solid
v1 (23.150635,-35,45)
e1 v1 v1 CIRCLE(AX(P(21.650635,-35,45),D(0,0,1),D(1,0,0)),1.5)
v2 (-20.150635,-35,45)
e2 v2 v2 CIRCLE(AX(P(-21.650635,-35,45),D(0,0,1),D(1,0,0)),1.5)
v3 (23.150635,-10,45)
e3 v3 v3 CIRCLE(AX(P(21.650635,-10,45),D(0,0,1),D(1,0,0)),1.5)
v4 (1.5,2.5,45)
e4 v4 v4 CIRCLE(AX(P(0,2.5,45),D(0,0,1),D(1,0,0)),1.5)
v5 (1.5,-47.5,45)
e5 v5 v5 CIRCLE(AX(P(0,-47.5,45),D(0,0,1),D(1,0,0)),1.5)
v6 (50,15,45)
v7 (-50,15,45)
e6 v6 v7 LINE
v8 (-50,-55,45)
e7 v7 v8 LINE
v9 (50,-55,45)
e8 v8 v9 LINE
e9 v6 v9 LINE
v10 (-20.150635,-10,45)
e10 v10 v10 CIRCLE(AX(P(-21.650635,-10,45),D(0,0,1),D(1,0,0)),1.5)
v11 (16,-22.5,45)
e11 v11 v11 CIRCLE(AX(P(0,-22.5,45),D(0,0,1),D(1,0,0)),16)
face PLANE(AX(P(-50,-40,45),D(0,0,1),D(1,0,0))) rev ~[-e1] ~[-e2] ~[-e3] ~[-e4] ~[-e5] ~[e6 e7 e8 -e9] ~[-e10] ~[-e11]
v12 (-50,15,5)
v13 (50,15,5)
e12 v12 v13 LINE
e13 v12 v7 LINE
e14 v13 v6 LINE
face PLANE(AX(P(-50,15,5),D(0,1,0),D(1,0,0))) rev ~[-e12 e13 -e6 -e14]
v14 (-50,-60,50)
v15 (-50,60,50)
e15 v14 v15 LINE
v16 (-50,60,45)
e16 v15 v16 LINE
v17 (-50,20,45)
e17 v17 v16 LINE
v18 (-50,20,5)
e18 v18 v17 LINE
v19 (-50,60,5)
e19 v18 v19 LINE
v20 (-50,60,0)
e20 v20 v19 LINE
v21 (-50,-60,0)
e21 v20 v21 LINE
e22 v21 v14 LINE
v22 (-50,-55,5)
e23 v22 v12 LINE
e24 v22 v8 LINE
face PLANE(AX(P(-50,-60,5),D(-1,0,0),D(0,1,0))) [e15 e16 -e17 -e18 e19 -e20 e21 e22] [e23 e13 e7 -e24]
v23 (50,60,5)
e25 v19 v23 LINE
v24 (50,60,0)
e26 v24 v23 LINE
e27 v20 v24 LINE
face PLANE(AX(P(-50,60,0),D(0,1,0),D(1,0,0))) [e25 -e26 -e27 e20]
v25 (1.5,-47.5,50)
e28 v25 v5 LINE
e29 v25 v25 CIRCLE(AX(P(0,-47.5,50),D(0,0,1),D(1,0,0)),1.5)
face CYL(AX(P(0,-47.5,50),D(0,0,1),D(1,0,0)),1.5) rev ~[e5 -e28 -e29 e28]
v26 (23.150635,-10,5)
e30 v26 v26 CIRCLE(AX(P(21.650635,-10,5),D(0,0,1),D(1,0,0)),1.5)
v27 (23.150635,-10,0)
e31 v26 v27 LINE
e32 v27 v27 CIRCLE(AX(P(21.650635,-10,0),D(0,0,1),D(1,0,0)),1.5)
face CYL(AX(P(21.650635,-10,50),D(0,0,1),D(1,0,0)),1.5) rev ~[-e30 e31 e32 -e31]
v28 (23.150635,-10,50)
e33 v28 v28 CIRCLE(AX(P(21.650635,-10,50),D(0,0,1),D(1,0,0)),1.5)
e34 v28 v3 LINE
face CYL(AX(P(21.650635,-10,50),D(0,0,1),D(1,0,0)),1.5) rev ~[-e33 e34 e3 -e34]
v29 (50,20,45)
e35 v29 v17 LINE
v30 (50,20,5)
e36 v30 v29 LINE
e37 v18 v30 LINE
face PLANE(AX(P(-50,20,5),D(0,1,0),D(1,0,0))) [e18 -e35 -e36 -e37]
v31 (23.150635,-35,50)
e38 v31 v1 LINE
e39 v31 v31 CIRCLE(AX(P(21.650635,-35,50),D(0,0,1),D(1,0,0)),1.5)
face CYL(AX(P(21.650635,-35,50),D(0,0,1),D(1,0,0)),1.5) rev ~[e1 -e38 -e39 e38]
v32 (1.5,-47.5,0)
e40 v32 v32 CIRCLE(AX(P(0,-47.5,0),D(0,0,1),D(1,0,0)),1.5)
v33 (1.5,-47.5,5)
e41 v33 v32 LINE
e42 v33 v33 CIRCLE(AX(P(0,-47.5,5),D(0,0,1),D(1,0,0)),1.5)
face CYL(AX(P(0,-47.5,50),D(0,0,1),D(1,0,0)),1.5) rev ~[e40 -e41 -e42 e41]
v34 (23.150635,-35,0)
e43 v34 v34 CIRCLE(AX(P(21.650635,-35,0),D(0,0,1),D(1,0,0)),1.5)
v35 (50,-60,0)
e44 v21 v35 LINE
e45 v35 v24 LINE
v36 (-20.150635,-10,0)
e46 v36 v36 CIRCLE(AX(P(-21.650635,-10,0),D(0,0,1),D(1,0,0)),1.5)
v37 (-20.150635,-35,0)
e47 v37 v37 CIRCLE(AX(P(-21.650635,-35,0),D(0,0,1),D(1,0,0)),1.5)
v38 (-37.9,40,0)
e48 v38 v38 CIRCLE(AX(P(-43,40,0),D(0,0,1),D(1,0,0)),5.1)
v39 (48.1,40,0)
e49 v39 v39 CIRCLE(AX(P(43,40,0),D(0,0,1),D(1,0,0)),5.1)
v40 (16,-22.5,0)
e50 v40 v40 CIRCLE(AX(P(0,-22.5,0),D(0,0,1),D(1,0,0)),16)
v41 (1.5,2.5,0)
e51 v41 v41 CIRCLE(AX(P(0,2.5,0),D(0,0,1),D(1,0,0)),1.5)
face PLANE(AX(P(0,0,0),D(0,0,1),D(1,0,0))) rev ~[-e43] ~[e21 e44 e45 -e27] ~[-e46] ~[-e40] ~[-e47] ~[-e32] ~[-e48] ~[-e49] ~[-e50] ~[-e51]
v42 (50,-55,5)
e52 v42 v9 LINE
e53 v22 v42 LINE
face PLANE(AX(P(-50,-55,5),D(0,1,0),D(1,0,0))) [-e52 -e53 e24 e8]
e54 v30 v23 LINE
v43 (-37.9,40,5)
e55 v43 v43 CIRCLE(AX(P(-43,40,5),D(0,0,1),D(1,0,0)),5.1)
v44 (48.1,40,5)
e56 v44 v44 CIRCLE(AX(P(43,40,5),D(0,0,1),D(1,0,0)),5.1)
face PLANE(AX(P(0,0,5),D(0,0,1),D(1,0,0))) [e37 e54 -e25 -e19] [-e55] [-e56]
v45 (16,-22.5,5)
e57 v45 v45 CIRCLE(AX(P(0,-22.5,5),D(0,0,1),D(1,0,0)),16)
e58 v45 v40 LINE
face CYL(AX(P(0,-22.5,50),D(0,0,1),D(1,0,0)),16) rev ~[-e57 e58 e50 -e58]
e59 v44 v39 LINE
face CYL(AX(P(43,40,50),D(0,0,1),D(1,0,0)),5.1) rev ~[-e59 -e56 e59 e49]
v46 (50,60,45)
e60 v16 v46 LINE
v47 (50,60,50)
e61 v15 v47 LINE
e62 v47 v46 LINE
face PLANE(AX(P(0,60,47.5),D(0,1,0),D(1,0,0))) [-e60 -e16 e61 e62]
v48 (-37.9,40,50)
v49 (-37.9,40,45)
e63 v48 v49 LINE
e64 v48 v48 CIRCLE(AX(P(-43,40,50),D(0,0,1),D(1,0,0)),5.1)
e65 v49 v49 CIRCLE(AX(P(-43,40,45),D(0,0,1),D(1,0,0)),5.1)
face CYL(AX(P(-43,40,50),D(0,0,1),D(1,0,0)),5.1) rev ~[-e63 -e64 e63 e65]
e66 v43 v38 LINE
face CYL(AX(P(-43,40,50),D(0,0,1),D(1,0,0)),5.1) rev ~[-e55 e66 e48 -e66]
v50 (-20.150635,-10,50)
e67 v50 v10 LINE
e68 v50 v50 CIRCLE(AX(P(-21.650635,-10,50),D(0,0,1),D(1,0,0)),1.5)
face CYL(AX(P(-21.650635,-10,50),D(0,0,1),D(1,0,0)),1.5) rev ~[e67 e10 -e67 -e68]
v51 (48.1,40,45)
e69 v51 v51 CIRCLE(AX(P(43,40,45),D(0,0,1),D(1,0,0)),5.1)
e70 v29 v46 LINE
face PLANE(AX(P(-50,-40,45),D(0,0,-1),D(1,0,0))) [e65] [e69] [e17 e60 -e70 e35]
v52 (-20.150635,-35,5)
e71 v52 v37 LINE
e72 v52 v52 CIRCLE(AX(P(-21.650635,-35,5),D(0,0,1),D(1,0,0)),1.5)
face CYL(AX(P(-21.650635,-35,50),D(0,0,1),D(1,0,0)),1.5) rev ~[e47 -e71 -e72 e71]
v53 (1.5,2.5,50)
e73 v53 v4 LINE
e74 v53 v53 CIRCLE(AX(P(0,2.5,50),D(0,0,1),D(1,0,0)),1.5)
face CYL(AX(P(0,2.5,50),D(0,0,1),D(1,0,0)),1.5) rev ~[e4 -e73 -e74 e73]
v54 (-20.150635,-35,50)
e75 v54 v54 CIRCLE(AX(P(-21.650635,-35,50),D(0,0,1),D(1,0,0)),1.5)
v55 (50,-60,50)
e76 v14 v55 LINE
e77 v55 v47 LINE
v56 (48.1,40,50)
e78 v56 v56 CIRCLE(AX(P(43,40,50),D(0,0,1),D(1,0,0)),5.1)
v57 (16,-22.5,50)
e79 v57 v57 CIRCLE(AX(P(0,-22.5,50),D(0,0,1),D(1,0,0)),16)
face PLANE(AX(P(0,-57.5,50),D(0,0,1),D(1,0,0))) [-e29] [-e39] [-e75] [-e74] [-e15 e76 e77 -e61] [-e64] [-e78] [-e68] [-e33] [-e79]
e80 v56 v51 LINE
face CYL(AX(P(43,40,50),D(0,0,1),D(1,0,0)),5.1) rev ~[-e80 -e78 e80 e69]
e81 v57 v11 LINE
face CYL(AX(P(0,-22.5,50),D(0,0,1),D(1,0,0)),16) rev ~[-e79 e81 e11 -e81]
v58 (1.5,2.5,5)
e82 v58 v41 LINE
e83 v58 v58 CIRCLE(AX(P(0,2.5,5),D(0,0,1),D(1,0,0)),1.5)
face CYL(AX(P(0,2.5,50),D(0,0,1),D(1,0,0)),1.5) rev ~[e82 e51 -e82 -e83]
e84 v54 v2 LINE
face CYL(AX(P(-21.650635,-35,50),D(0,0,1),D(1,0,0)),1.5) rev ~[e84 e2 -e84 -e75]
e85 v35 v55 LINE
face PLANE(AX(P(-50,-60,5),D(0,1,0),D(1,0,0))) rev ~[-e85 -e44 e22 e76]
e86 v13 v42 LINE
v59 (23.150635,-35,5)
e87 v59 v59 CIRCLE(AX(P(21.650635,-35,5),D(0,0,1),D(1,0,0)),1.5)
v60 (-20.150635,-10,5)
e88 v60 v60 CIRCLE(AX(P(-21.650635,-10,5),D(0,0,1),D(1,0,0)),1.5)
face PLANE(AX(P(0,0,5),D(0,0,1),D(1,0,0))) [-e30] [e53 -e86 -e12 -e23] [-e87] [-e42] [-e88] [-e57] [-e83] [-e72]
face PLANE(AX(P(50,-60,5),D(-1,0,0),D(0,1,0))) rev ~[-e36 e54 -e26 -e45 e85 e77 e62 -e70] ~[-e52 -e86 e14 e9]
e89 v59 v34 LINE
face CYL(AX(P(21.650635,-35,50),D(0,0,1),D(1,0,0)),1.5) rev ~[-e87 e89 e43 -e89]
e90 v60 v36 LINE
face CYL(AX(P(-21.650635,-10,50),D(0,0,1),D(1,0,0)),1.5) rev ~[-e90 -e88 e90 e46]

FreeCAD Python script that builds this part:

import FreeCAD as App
import Part
import Sketcher
Q = App.Units.Quantity


def add_polygon(sketch, points):
    """Adds a closed chain of lines whose ends are joined by coincident constraints."""
    first, n = sketch.GeometryCount, len(points)
    for a, b in zip(points, points[1:] + points[:1]):
        sketch.addGeometry(Part.LineSegment(App.Vector(*a, 0), App.Vector(*b, 0)), False)
    for i in range(n):
        sketch.addConstraint(Sketcher.Constraint("Coincident", first + i, 2, first + (i + 1) % n, 1))

doc = App.newDocument("Part")
body = doc.addObject("PartDesign::Body", "Body")

sketch1 = body.newObject("Sketcher::SketchObject", "Sketch")
sketch1.AttachmentSupport = (doc.getObject("XY_Plane"), [""])
sketch1.MapMode = "FlatFace"
add_polygon(sketch1, [(-50, 60), (-50, -60), (50, -60), (50, 60)])
sketch1.addConstraint(Sketcher.Constraint("Vertical", 0))
sketch1.addConstraint(Sketcher.Constraint("Horizontal", 1))
sketch1.addConstraint(Sketcher.Constraint("Vertical", 2))
sketch1.addConstraint(Sketcher.Constraint("Horizontal", 3))
sketch1.addConstraint(Sketcher.Constraint("Symmetric", 0, 2, 2, 2, -1, 1))
sketch1.addConstraint(Sketcher.Constraint("DistanceX", 1, 1, 1, 2, Q("100 mm")))
sketch1.addConstraint(Sketcher.Constraint("DistanceY", 0, 2, 0, 1, Q("120 mm")))
pad1 = body.newObject("PartDesign::Pad", "Pad")
pad1.Profile = sketch1
pad1.Length = 5

sketch2 = body.newObject("Sketcher::SketchObject", "Sketch001")
sketch2.AttachmentSupport = (doc.getObject("XY_Plane"), [""])
sketch2.MapMode = "FlatFace"
sketch2.AttachmentOffset = App.Placement(App.Vector(0, 0, 5), App.Rotation())
add_polygon(sketch2, [(-50, 20), (-50, 15), (50, 15), (50, 20)])
sketch2.addConstraint(Sketcher.Constraint("Vertical", 0))
sketch2.addConstraint(Sketcher.Constraint("Horizontal", 1))
sketch2.addConstraint(Sketcher.Constraint("Vertical", 2))
sketch2.addConstraint(Sketcher.Constraint("Horizontal", 3))
sketch2.addConstraint(Sketcher.Constraint("DistanceX", 1, 1, 1, 2, Q("100 mm")))
sketch2.addConstraint(Sketcher.Constraint("DistanceY", 0, 2, 0, 1, Q("5 mm")))
sketch2.addConstraint(Sketcher.Constraint("DistanceX", 0, 2, -1, 1, Q("50 mm")))
sketch2.addConstraint(Sketcher.Constraint("DistanceY", -1, 1, 0, 2, Q("15 mm")))
pad2 = body.newObject("PartDesign::Pad", "Pad001")
pad2.Profile = sketch2
pad2.Length = 45

sketch3 = body.newObject("Sketcher::SketchObject", "Sketch002")
sketch3.AttachmentSupport = (doc.getObject("XZ_Plane"), [""])
sketch3.MapMode = "FlatFace"
sketch3.AttachmentOffset = App.Placement(App.Vector(0, 0, -20), App.Rotation())
add_polygon(sketch3, [(-50, 45), (-50, 50), (50, 50), (50, 45)])
sketch3.addConstraint(Sketcher.Constraint("Vertical", 0))
sketch3.addConstraint(Sketcher.Constraint("Horizontal", 1))
sketch3.addConstraint(Sketcher.Constraint("Vertical", 2))
sketch3.addConstraint(Sketcher.Constraint("Horizontal", 3))
sketch3.addConstraint(Sketcher.Constraint("DistanceX", 1, 1, 1, 2, Q("100 mm")))
sketch3.addConstraint(Sketcher.Constraint("DistanceY", 0, 1, 0, 2, Q("5 mm")))
sketch3.addConstraint(Sketcher.Constraint("DistanceX", 0, 2, -1, 1, Q("50 mm")))
sketch3.addConstraint(Sketcher.Constraint("DistanceY", -1, 1, 0, 2, Q("50 mm")))
pad3 = body.newObject("PartDesign::Pad", "Pad002")
pad3.Profile = sketch3
pad3.Type = "TwoLengths"
pad3.Length = 40
pad3.Length2 = 60
pad3.Reversed = True

sketch4 = body.newObject("Sketcher::SketchObject", "Sketch003")
sketch4.AttachmentSupport = (doc.getObject("XZ_Plane"), [""])
sketch4.MapMode = "FlatFace"
sketch4.AttachmentOffset = App.Placement(App.Vector(0, 0, 40), App.Rotation())
add_polygon(sketch4, [(-50, 50), (-50, 45), (50, 45), (50, 50)])
add_polygon(sketch4, [(-50, 5), (-50, 0), (50, 0), (50, 5)])
sketch4.addConstraint(Sketcher.Constraint("Vertical", 0))
sketch4.addConstraint(Sketcher.Constraint("Horizontal", 1))
sketch4.addConstraint(Sketcher.Constraint("Vertical", 2))
sketch4.addConstraint(Sketcher.Constraint("Horizontal", 3))
sketch4.addConstraint(Sketcher.Constraint("Vertical", 4))
sketch4.addConstraint(Sketcher.Constraint("Horizontal", 5))
sketch4.addConstraint(Sketcher.Constraint("Vertical", 6))
sketch4.addConstraint(Sketcher.Constraint("Horizontal", 7))
sketch4.addConstraint(Sketcher.Constraint("Symmetric", 4, 2, 5, 2, -1, 1))
sketch4.addConstraint(Sketcher.Constraint("Vertical", 3, 2, 4, 2))
sketch4.addConstraint(Sketcher.Constraint("Vertical", 2, 2, 5, 2))
sketch4.addConstraint(Sketcher.Constraint("Equal", 2, 4))
sketch4.addConstraint(Sketcher.Constraint("DistanceX", 1, 1, 1, 2, Q("100 mm")))
sketch4.addConstraint(Sketcher.Constraint("DistanceY", 0, 2, 0, 1, Q("5 mm")))
sketch4.addConstraint(Sketcher.Constraint("DistanceY", -1, 1, 0, 2, Q("45 mm")))
pad4 = body.newObject("PartDesign::Pad", "Pad003")
pad4.Profile = sketch4
pad4.Length = 15

sketch5 = body.newObject("Sketcher::SketchObject", "Sketch004")
sketch5.AttachmentSupport = (doc.getObject("XY_Plane"), [""])
sketch5.MapMode = "FlatFace"
sketch5.AttachmentOffset = App.Placement(App.Vector(0, 0, 5), App.Rotation())
add_polygon(sketch5, [(-50, -55), (-50, -60), (50, -60), (50, -55)])
sketch5.addConstraint(Sketcher.Constraint("Vertical", 0))
sketch5.addConstraint(Sketcher.Constraint("Horizontal", 1))
sketch5.addConstraint(Sketcher.Constraint("Vertical", 2))
sketch5.addConstraint(Sketcher.Constraint("Horizontal", 3))
sketch5.addConstraint(Sketcher.Constraint("DistanceX", 1, 1, 1, 2, Q("100 mm")))
sketch5.addConstraint(Sketcher.Constraint("DistanceY", 0, 2, 0, 1, Q("5 mm")))
sketch5.addConstraint(Sketcher.Constraint("DistanceX", 0, 2, -1, 1, Q("50 mm")))
sketch5.addConstraint(Sketcher.Constraint("DistanceY", 0, 2, -1, 1, Q("60 mm")))
pad5 = body.newObject("PartDesign::Pad", "Pad004")
pad5.Profile = sketch5
pad5.Length = 45

sketch6 = body.newObject("Sketcher::SketchObject", "Sketch005")
sketch6.AttachmentSupport = (doc.getObject("XY_Plane"), [""])
sketch6.MapMode = "FlatFace"
sketch6.AttachmentOffset = App.Placement(App.Vector(0, 0, 50), App.Rotation())
sketch6.addGeometry(Part.Circle(App.Vector(0, -22.5, 0), App.Vector(0, 0, 1), 16), False)
sketch6.addGeometry(Part.Circle(App.Vector(0, 2.5, 0), App.Vector(0, 0, 1), 1.5), False)
sketch6.addGeometry(Part.Circle(App.Vector(21.7, -10, 0), App.Vector(0, 0, 1), 1.5), False)
sketch6.addGeometry(Part.Circle(App.Vector(21.7, -35, 0), App.Vector(0, 0, 1), 1.5), False)
sketch6.addGeometry(Part.Circle(App.Vector(0, -47.5, 0), App.Vector(0, 0, 1), 1.5), False)
sketch6.addGeometry(Part.Circle(App.Vector(-21.7, -35, 0), App.Vector(0, 0, 1), 1.5), False)
sketch6.addGeometry(Part.Circle(App.Vector(-21.7, -10, 0), App.Vector(0, 0, 1), 1.5), False)
sketch6.addConstraint(Sketcher.Constraint("Equal", 1, 2))
sketch6.addConstraint(Sketcher.Constraint("Equal", 2, 3))
sketch6.addConstraint(Sketcher.Constraint("Equal", 3, 4))
sketch6.addConstraint(Sketcher.Constraint("Equal", 4, 5))
sketch6.addConstraint(Sketcher.Constraint("Equal", 5, 6))
sketch6.addConstraint(Sketcher.Constraint("Symmetric", 3, 3, 5, 3, -2))
sketch6.addConstraint(Sketcher.Constraint("Symmetric", 2, 3, 6, 3, -2))
sketch6.addConstraint(Sketcher.Constraint("PointOnObject", 0, 3, -2))
sketch6.addConstraint(Sketcher.Constraint("PointOnObject", 1, 3, -2))
sketch6.addConstraint(Sketcher.Constraint("PointOnObject", 4, 3, -2))
sketch6.addConstraint(Sketcher.Constraint("Vertical", 2, 3, 3, 3))
sketch6.addConstraint(Sketcher.Constraint("Diameter", 0, Q("32 mm")))
sketch6.addConstraint(Sketcher.Constraint("Diameter", 1, Q("3 mm")))
sketch6.addConstraint(Sketcher.Constraint("DistanceY", 2, 3, -1, 1, Q("10 mm")))
sketch6.addConstraint(Sketcher.Constraint("DistanceY", 3, 3, -1, 1, Q("35 mm")))
sketch6.addConstraint(Sketcher.Constraint("DistanceY", 0, 3, 1, 3, Q("25 mm")))
sketch6.addConstraint(Sketcher.Constraint("DistanceY", 4, 3, 0, 3, Q("25 mm")))
sketch6.addConstraint(Sketcher.Constraint("DistanceY", 0, 3, -1, 1, Q("22.5 mm")))
sketch6.addConstraint(Sketcher.Constraint("DistanceX", 5, 3, 3, 3, Q("43.30127 mm")))
pocket1 = body.newObject("PartDesign::Pocket", "Pocket")
pocket1.Profile = sketch6
pocket1.Type = "ThroughAll"

sketch7 = body.newObject("Sketcher::SketchObject", "Sketch006")
sketch7.AttachmentSupport = (doc.getObject("XY_Plane"), [""])
sketch7.MapMode = "FlatFace"
sketch7.AttachmentOffset = App.Placement(App.Vector(0, 0, 50), App.Rotation())
sketch7.addGeometry(Part.Circle(App.Vector(-43, 40, 0), App.Vector(0, 0, 1), 5), False)
sketch7.addGeometry(Part.Circle(App.Vector(43, 40, 0), App.Vector(0, 0, 1), 5), False)
sketch7.addConstraint(Sketcher.Constraint("Equal", 0, 1))
sketch7.addConstraint(Sketcher.Constraint("Symmetric", 0, 3, 1, 3, -2))
sketch7.addConstraint(Sketcher.Constraint("Diameter", 0, Q("10.2 mm")))
sketch7.addConstraint(Sketcher.Constraint("DistanceX", 0, 3, -1, 1, Q("43 mm")))
sketch7.addConstraint(Sketcher.Constraint("DistanceY", -1, 1, 0, 3, Q("40 mm")))
pocket2 = body.newObject("PartDesign::Pocket", "Pocket001")
pocket2.Profile = sketch7
pocket2.Type = "ThroughAll"

doc.recompute()
